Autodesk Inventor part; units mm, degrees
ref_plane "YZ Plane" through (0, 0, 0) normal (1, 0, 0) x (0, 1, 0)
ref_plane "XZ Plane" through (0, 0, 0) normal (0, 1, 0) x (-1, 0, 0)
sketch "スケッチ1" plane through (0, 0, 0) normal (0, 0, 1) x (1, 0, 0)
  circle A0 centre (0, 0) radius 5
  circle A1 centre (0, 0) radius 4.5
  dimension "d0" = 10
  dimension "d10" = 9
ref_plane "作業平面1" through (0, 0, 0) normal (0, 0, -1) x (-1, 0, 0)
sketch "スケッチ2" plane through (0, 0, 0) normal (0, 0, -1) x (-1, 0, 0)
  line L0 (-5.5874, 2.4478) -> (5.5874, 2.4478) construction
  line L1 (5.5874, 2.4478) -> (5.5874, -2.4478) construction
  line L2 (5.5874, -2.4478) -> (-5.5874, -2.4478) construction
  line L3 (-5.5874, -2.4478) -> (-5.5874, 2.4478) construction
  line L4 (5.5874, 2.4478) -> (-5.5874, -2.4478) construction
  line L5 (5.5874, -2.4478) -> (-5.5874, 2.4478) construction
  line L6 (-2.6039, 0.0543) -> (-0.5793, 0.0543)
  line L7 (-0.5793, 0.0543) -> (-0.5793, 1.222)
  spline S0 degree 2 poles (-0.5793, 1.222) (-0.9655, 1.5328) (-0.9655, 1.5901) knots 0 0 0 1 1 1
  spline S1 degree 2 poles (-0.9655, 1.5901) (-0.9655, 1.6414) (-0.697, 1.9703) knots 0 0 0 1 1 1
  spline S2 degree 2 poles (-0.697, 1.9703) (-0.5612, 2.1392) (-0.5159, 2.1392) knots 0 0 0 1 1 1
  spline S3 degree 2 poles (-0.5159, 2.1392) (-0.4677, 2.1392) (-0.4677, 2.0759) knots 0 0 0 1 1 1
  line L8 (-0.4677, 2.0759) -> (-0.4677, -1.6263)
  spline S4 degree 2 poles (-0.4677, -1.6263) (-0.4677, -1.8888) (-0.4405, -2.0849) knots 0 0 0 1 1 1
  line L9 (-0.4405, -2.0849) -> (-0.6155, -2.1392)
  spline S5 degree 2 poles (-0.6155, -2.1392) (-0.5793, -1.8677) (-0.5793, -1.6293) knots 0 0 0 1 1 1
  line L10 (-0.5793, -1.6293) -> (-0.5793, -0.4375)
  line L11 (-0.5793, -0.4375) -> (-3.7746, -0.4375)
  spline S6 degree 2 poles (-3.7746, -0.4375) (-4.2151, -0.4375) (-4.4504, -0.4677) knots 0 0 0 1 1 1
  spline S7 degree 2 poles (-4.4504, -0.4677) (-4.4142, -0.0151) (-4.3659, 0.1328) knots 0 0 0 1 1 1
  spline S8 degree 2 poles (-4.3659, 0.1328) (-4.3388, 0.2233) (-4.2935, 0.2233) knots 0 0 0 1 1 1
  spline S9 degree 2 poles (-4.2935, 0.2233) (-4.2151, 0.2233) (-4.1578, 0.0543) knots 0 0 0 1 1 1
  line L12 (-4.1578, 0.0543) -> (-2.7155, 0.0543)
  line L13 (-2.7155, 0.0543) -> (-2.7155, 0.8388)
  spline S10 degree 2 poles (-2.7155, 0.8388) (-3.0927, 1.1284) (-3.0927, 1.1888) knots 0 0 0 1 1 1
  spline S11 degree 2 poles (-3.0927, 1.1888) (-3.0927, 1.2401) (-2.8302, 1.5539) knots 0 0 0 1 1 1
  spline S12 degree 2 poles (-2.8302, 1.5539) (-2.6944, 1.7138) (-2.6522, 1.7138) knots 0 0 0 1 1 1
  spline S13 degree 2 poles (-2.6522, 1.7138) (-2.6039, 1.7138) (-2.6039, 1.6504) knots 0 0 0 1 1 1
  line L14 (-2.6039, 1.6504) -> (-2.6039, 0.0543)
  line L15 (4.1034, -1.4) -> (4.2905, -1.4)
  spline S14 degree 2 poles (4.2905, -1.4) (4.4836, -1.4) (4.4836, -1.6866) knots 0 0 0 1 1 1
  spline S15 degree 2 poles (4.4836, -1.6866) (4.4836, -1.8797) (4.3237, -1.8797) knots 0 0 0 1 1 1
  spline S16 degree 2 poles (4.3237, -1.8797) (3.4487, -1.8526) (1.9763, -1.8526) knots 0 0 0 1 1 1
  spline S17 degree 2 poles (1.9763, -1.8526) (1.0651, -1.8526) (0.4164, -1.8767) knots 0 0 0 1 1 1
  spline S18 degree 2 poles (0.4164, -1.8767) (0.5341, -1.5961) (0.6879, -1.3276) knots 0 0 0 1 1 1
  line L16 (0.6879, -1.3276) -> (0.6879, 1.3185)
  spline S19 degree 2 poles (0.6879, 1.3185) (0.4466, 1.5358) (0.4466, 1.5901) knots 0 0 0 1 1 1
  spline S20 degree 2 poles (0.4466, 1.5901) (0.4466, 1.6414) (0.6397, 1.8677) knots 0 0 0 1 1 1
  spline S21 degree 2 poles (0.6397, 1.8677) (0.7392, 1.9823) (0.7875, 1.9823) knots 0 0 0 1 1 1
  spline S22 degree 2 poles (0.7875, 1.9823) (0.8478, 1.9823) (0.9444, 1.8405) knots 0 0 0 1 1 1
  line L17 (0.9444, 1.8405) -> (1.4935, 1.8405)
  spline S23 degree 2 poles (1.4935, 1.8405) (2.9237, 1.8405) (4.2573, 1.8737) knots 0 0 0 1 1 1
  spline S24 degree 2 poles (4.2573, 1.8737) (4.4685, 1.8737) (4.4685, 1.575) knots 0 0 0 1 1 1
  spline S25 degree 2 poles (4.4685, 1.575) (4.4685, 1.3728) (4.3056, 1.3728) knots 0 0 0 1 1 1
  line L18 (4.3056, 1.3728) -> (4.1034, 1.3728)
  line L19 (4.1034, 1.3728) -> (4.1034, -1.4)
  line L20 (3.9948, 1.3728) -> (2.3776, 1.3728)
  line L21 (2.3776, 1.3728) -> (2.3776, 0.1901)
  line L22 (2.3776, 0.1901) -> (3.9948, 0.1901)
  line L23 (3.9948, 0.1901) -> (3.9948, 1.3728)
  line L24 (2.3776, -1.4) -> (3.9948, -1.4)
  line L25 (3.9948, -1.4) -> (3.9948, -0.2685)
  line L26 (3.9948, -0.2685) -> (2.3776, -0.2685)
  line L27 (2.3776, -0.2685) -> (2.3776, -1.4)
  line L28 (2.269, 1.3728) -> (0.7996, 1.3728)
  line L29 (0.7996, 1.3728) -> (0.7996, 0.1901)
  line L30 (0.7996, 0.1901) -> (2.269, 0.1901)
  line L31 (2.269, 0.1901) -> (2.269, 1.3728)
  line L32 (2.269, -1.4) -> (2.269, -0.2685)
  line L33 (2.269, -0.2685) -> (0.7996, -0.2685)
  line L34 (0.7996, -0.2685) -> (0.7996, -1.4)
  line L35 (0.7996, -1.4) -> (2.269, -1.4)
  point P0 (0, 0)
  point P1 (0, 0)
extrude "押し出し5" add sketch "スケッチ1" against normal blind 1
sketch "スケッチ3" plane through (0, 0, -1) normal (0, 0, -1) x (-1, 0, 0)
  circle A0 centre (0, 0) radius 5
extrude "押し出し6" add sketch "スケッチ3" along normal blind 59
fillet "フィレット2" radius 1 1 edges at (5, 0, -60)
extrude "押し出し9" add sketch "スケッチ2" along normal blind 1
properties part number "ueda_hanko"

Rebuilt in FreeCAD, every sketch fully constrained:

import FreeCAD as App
import Part
import Sketcher
from FreeCAD import Vector
Q = App.Units.Quantity


def edges_at(feature, points):
    """Names of the edges that pass closest to the given points."""
    edges = feature.Shape.Edges
    near = lambda p: min(range(len(edges)), key=lambda i: edges[i].distToShape(Part.Vertex(*p))[0])
    return sorted({f"Edge{near(p) + 1}" for p in points})

doc = App.newDocument("Part")
body = doc.addObject("PartDesign::Body", "Body")

sketch1 = doc.addObject("Sketcher::SketchObject", "Sketch")
body.addObject(sketch1)
sketch1.AttachmentSupport = (doc.XY_Plane, [""])
sketch1.MapMode = "FlatFace"
sketch1.addGeometry(Part.Circle(Vector(0, 0, 0), Vector(0, 0, 1), 5), False)
sketch1.addGeometry(Part.Circle(Vector(0, 0, 0), Vector(0, 0, 1), 4.5), False)
sketch1.addConstraint(Sketcher.Constraint("Coincident", 0, 3, -1, 1))
sketch1.addConstraint(Sketcher.Constraint("Coincident", 1, 3, -1, 1))
sketch1.addConstraint(Sketcher.Constraint("Diameter", 0, Q("10 mm")))
sketch1.addConstraint(Sketcher.Constraint("Diameter", 1, Q("9 mm")))
pad1 = doc.addObject("PartDesign::Pad", "Pad")
body.addObject(pad1)
pad1.Profile = sketch1
pad1.Length = 1
pad1.Reversed = True

sketch2 = doc.addObject("Sketcher::SketchObject", "Sketch001")
body.addObject(sketch2)
sketch2.AttachmentSupport = (doc.XY_Plane, [""])
sketch2.MapMode = "FlatFace"
sketch2.AttachmentOffset = App.Placement(Vector(0, 0, -1), App.Rotation())
sketch2.addGeometry(Part.Circle(Vector(0, 0, 0), Vector(0, 0, 1), 5), False)
sketch2.addConstraint(Sketcher.Constraint("Coincident", 0, 3, -1, 1))
sketch2.addConstraint(Sketcher.Constraint("Diameter", 0, Q("10 mm")))
pad2 = doc.addObject("PartDesign::Pad", "Pad001")
body.addObject(pad2)
pad2.Profile = sketch2
pad2.Length = 59
pad2.Reversed = True
doc.recompute()

fillet = doc.addObject("PartDesign::Fillet", "Fillet")
body.addObject(fillet)
fillet.Base = (pad2, edges_at(pad2, [(5, 0, -60)]))
fillet.Radius = 1

sketch3 = doc.addObject("Sketcher::SketchObject", "Sketch002")
body.addObject(sketch3)
sketch3.AttachmentSupport = (doc.XY_Plane, [""])
sketch3.MapMode = "FlatFace"
sketch3.addGeometry(Part.LineSegment(Vector(0.5793, 0.0543, 0), Vector(2.6039, 0.0543, 0)), False)
sketch3.addGeometry(Part.LineSegment(Vector(2.6039, 0.0543, 0), Vector(2.6039, 1.6504, 0)), False)
sketch3.addGeometry(Part.BSplineCurve([Vector(2.6522, 1.7138, 0), Vector(2.6039, 1.7138, 0), Vector(2.6039, 1.6504, 0)], [3, 3], [0, 1], False, 2, [1, 1, 1], False), False)
sketch3.addGeometry(Part.BSplineCurve([Vector(2.8302, 1.5539, 0), Vector(2.6944, 1.7138, 0), Vector(2.6522, 1.7138, 0)], [3, 3], [0, 1], False, 2, [1, 1, 1], False), False)
sketch3.addGeometry(Part.BSplineCurve([Vector(3.0927, 1.1888, 0), Vector(3.0927, 1.2401, 0), Vector(2.8302, 1.5539, 0)], [3, 3], [0, 1], False, 2, [1, 1, 1], False), False)
sketch3.addGeometry(Part.BSplineCurve([Vector(2.7155, 0.8388, 0), Vector(3.0927, 1.1284, 0), Vector(3.0927, 1.1888, 0)], [3, 3], [0, 1], False, 2, [1, 1, 1], False), False)
sketch3.addGeometry(Part.LineSegment(Vector(2.7155, 0.8388, 0), Vector(2.7155, 0.0543, 0)), False)
sketch3.addGeometry(Part.LineSegment(Vector(2.7155, 0.0543, 0), Vector(4.1578, 0.0543, 0)), False)
sketch3.addGeometry(Part.BSplineCurve([Vector(4.2935, 0.2233, 0), Vector(4.2151, 0.2233, 0), Vector(4.1578, 0.0543, 0)], [3, 3], [0, 1], False, 2, [1, 1, 1], False), False)
sketch3.addGeometry(Part.BSplineCurve([Vector(4.3659, 0.1328, 0), Vector(4.3388, 0.2233, 0), Vector(4.2935, 0.2233, 0)], [3, 3], [0, 1], False, 2, [1, 1, 1], False), False)
sketch3.addGeometry(Part.BSplineCurve([Vector(4.4504, -0.4677, 0), Vector(4.4142, -0.0151, 0), Vector(4.3659, 0.1328, 0)], [3, 3], [0, 1], False, 2, [1, 1, 1], False), False)
sketch3.addGeometry(Part.BSplineCurve([Vector(3.7746, -0.4375, 0), Vector(4.2151, -0.4375, 0), Vector(4.4504, -0.4677, 0)], [3, 3], [0, 1], False, 2, [1, 1, 1], False), False)
sketch3.addGeometry(Part.LineSegment(Vector(3.7746, -0.4375, 0), Vector(0.5793, -0.4375, 0)), False)
sketch3.addGeometry(Part.LineSegment(Vector(0.5793, -0.4375, 0), Vector(0.5793, -1.6293, 0)), False)
sketch3.addGeometry(Part.BSplineCurve([Vector(0.6155, -2.1392, 0), Vector(0.5793, -1.8677, 0), Vector(0.5793, -1.6293, 0)], [3, 3], [0, 1], False, 2, [1, 1, 1], False), False)
sketch3.addGeometry(Part.LineSegment(Vector(0.6155, -2.1392, 0), Vector(0.4405, -2.0849, 0)), False)
sketch3.addGeometry(Part.BSplineCurve([Vector(0.4677, -1.6263, 0), Vector(0.4677, -1.8888, 0), Vector(0.4405, -2.0849, 0)], [3, 3], [0, 1], False, 2, [1, 1, 1], False), False)
sketch3.addGeometry(Part.LineSegment(Vector(0.4677, -1.6263, 0), Vector(0.4677, 2.0759, 0)), False)
sketch3.addGeometry(Part.BSplineCurve([Vector(0.5159, 2.1392, 0), Vector(0.4677, 2.1392, 0), Vector(0.4677, 2.0759, 0)], [3, 3], [0, 1], False, 2, [1, 1, 1], False), False)
sketch3.addGeometry(Part.BSplineCurve([Vector(0.697, 1.9703, 0), Vector(0.5612, 2.1392, 0), Vector(0.5159, 2.1392, 0)], [3, 3], [0, 1], False, 2, [1, 1, 1], False), False)
sketch3.addGeometry(Part.BSplineCurve([Vector(0.9655, 1.5901, 0), Vector(0.9655, 1.6414, 0), Vector(0.697, 1.9703, 0)], [3, 3], [0, 1], False, 2, [1, 1, 1], False), False)
sketch3.addGeometry(Part.BSplineCurve([Vector(0.5793, 1.222, 0), Vector(0.9655, 1.5328, 0), Vector(0.9655, 1.5901, 0)], [3, 3], [0, 1], False, 2, [1, 1, 1], False), False)
sketch3.addGeometry(Part.LineSegment(Vector(0.5793, 1.222, 0), Vector(0.5793, 0.0543, 0)), False)
sketch3.addGeometry(Part.LineSegment(Vector(-4.2905, -1.4, 0), Vector(-4.1034, -1.4, 0)), False)
sketch3.addGeometry(Part.LineSegment(Vector(-4.1034, -1.4, 0), Vector(-4.1034, 1.3728, 0)), False)
sketch3.addGeometry(Part.LineSegment(Vector(-4.1034, 1.3728, 0), Vector(-4.3056, 1.3728, 0)), False)
sketch3.addGeometry(Part.BSplineCurve([Vector(-4.4685, 1.575, 0), Vector(-4.4685, 1.3728, 0), Vector(-4.3056, 1.3728, 0)], [3, 3], [0, 1], False, 2, [1, 1, 1], False), False)
sketch3.addGeometry(Part.BSplineCurve([Vector(-4.2573, 1.8737, 0), Vector(-4.4685, 1.8737, 0), Vector(-4.4685, 1.575, 0)], [3, 3], [0, 1], False, 2, [1, 1, 1], False), False)
sketch3.addGeometry(Part.BSplineCurve([Vector(-1.4935, 1.8405, 0), Vector(-2.9237, 1.8405, 0), Vector(-4.2573, 1.8737, 0)], [3, 3], [0, 1], False, 2, [1, 1, 1], False), False)
sketch3.addGeometry(Part.LineSegment(Vector(-1.4935, 1.8405, 0), Vector(-0.9444, 1.8405, 0)), False)
sketch3.addGeometry(Part.BSplineCurve([Vector(-0.7875, 1.9823, 0), Vector(-0.8478, 1.9823, 0), Vector(-0.9444, 1.8405, 0)], [3, 3], [0, 1], False, 2, [1, 1, 1], False), False)
sketch3.addGeometry(Part.BSplineCurve([Vector(-0.6397, 1.8677, 0), Vector(-0.7392, 1.9823, 0), Vector(-0.7875, 1.9823, 0)], [3, 3], [0, 1], False, 2, [1, 1, 1], False), False)
sketch3.addGeometry(Part.BSplineCurve([Vector(-0.4466, 1.5901, 0), Vector(-0.4466, 1.6414, 0), Vector(-0.6397, 1.8677, 0)], [3, 3], [0, 1], False, 2, [1, 1, 1], False), False)
sketch3.addGeometry(Part.BSplineCurve([Vector(-0.6879, 1.3185, 0), Vector(-0.4466, 1.5358, 0), Vector(-0.4466, 1.5901, 0)], [3, 3], [0, 1], False, 2, [1, 1, 1], False), False)
sketch3.addGeometry(Part.LineSegment(Vector(-0.6879, 1.3185, 0), Vector(-0.6879, -1.3276, 0)), False)
sketch3.addGeometry(Part.BSplineCurve([Vector(-0.4164, -1.8767, 0), Vector(-0.5341, -1.5961, 0), Vector(-0.6879, -1.3276, 0)], [3, 3], [0, 1], False, 2, [1, 1, 1], False), False)
sketch3.addGeometry(Part.BSplineCurve([Vector(-1.9763, -1.8526, 0), Vector(-1.0651, -1.8526, 0), Vector(-0.4164, -1.8767, 0)], [3, 3], [0, 1], False, 2, [1, 1, 1], False), False)
sketch3.addGeometry(Part.BSplineCurve([Vector(-4.3237, -1.8797, 0), Vector(-3.4487, -1.8526, 0), Vector(-1.9763, -1.8526, 0)], [3, 3], [0, 1], False, 2, [1, 1, 1], False), False)
sketch3.addGeometry(Part.BSplineCurve([Vector(-4.4836, -1.6866, 0), Vector(-4.4836, -1.8797, 0), Vector(-4.3237, -1.8797, 0)], [3, 3], [0, 1], False, 2, [1, 1, 1], False), False)
sketch3.addGeometry(Part.BSplineCurve([Vector(-4.2905, -1.4, 0), Vector(-4.4836, -1.4, 0), Vector(-4.4836, -1.6866, 0)], [3, 3], [0, 1], False, 2, [1, 1, 1], False), False)
sketch3.addGeometry(Part.LineSegment(Vector(-2.269, -0.2685, 0), Vector(-2.269, -1.4, 0)), False)
sketch3.addGeometry(Part.LineSegment(Vector(-2.269, -1.4, 0), Vector(-0.7996, -1.4, 0)), False)
sketch3.addGeometry(Part.LineSegment(Vector(-0.7996, -1.4, 0), Vector(-0.7996, -0.2685, 0)), False)
sketch3.addGeometry(Part.LineSegment(Vector(-0.7996, -0.2685, 0), Vector(-2.269, -0.2685, 0)), False)
sketch3.addGeometry(Part.LineSegment(Vector(-3.9948, -1.4, 0), Vector(-2.3776, -1.4, 0)), False)
sketch3.addGeometry(Part.LineSegment(Vector(-2.3776, -1.4, 0), Vector(-2.3776, -0.2685, 0)), False)
sketch3.addGeometry(Part.LineSegment(Vector(-2.3776, -0.2685, 0), Vector(-3.9948, -0.2685, 0)), False)
sketch3.addGeometry(Part.LineSegment(Vector(-3.9948, -0.2685, 0), Vector(-3.9948, -1.4, 0)), False)
sketch3.addGeometry(Part.LineSegment(Vector(-0.7996, 1.3728, 0), Vector(-2.269, 1.3728, 0)), False)
sketch3.addGeometry(Part.LineSegment(Vector(-2.269, 1.3728, 0), Vector(-2.269, 0.1901, 0)), False)
sketch3.addGeometry(Part.LineSegment(Vector(-2.269, 0.1901, 0), Vector(-0.7996, 0.1901, 0)), False)
sketch3.addGeometry(Part.LineSegment(Vector(-0.7996, 0.1901, 0), Vector(-0.7996, 1.3728, 0)), False)
sketch3.addGeometry(Part.LineSegment(Vector(-2.3776, 1.3728, 0), Vector(-3.9948, 1.3728, 0)), False)
sketch3.addGeometry(Part.LineSegment(Vector(-3.9948, 1.3728, 0), Vector(-3.9948, 0.1901, 0)), False)
sketch3.addGeometry(Part.LineSegment(Vector(-3.9948, 0.1901, 0), Vector(-2.3776, 0.1901, 0)), False)
sketch3.addGeometry(Part.LineSegment(Vector(-2.3776, 0.1901, 0), Vector(-2.3776, 1.3728, 0)), False)
sketch3.addConstraint(Sketcher.Constraint("Block", 2))
sketch3.addConstraint(Sketcher.Constraint("Block", 3))
sketch3.addConstraint(Sketcher.Constraint("Block", 4))
sketch3.addConstraint(Sketcher.Constraint("Block", 5))
sketch3.addConstraint(Sketcher.Constraint("Block", 8))
sketch3.addConstraint(Sketcher.Constraint("Block", 9))
sketch3.addConstraint(Sketcher.Constraint("Block", 10))
sketch3.addConstraint(Sketcher.Constraint("Block", 11))
sketch3.addConstraint(Sketcher.Constraint("Block", 14))
sketch3.addConstraint(Sketcher.Constraint("Block", 16))
sketch3.addConstraint(Sketcher.Constraint("Block", 18))
sketch3.addConstraint(Sketcher.Constraint("Block", 19))
sketch3.addConstraint(Sketcher.Constraint("Block", 20))
sketch3.addConstraint(Sketcher.Constraint("Block", 21))
sketch3.addConstraint(Sketcher.Constraint("Block", 26))
sketch3.addConstraint(Sketcher.Constraint("Block", 27))
sketch3.addConstraint(Sketcher.Constraint("Block", 28))
sketch3.addConstraint(Sketcher.Constraint("Block", 30))
sketch3.addConstraint(Sketcher.Constraint("Block", 31))
sketch3.addConstraint(Sketcher.Constraint("Block", 32))
sketch3.addConstraint(Sketcher.Constraint("Block", 33))
sketch3.addConstraint(Sketcher.Constraint("Block", 35))
sketch3.addConstraint(Sketcher.Constraint("Block", 36))
sketch3.addConstraint(Sketcher.Constraint("Block", 37))
sketch3.addConstraint(Sketcher.Constraint("Block", 38))
sketch3.addConstraint(Sketcher.Constraint("Block", 39))
sketch3.addConstraint(Sketcher.Constraint("Coincident", 0, 2, 1, 1))
sketch3.addConstraint(Sketcher.Constraint("Coincident", 1, 2, 2, 2))
sketch3.addConstraint(Sketcher.Constraint("Coincident", 5, 1, 6, 1))
sketch3.addConstraint(Sketcher.Constraint("Coincident", 6, 2, 7, 1))
sketch3.addConstraint(Sketcher.Constraint("Coincident", 7, 2, 8, 2))
sketch3.addConstraint(Sketcher.Constraint("Coincident", 11, 1, 12, 1))
sketch3.addConstraint(Sketcher.Constraint("Coincident", 12, 2, 13, 1))
sketch3.addConstraint(Sketcher.Constraint("Coincident", 13, 2, 14, 2))
sketch3.addConstraint(Sketcher.Constraint("Coincident", 14, 1, 15, 1))
sketch3.addConstraint(Sketcher.Constraint("Coincident", 15, 2, 16, 2))
sketch3.addConstraint(Sketcher.Constraint("Coincident", 16, 1, 17, 1))
sketch3.addConstraint(Sketcher.Constraint("Coincident", 17, 2, 18, 2))
sketch3.addConstraint(Sketcher.Constraint("Coincident", 21, 1, 22, 1))
sketch3.addConstraint(Sketcher.Constraint("Coincident", 22, 2, 0, 1))
sketch3.addConstraint(Sketcher.Constraint("Coincident", 23, 2, 24, 1))
sketch3.addConstraint(Sketcher.Constraint("Coincident", 24, 2, 25, 1))
sketch3.addConstraint(Sketcher.Constraint("Coincident", 25, 2, 26, 2))
sketch3.addConstraint(Sketcher.Constraint("Coincident", 28, 1, 29, 1))
sketch3.addConstraint(Sketcher.Constraint("Coincident", 29, 2, 30, 2))
sketch3.addConstraint(Sketcher.Constraint("Coincident", 33, 1, 34, 1))
sketch3.addConstraint(Sketcher.Constraint("Coincident", 34, 2, 35, 2))
sketch3.addConstraint(Sketcher.Constraint("Coincident", 39, 1, 23, 1))
sketch3.addConstraint(Sketcher.Constraint("Coincident", 40, 2, 41, 1))
sketch3.addConstraint(Sketcher.Constraint("Coincident", 41, 2, 42, 1))
sketch3.addConstraint(Sketcher.Constraint("Coincident", 42, 2, 43, 1))
sketch3.addConstraint(Sketcher.Constraint("Coincident", 43, 2, 40, 1))
sketch3.addConstraint(Sketcher.Constraint("Coincident", 44, 2, 45, 1))
sketch3.addConstraint(Sketcher.Constraint("Coincident", 45, 2, 46, 1))
sketch3.addConstraint(Sketcher.Constraint("Coincident", 46, 2, 47, 1))
sketch3.addConstraint(Sketcher.Constraint("Coincident", 47, 2, 44, 1))
sketch3.addConstraint(Sketcher.Constraint("Coincident", 48, 2, 49, 1))
sketch3.addConstraint(Sketcher.Constraint("Coincident", 49, 2, 50, 1))
sketch3.addConstraint(Sketcher.Constraint("Coincident", 50, 2, 51, 1))
sketch3.addConstraint(Sketcher.Constraint("Coincident", 51, 2, 48, 1))
sketch3.addConstraint(Sketcher.Constraint("Coincident", 52, 2, 53, 1))
sketch3.addConstraint(Sketcher.Constraint("Coincident", 53, 2, 54, 1))
sketch3.addConstraint(Sketcher.Constraint("Coincident", 54, 2, 55, 1))
sketch3.addConstraint(Sketcher.Constraint("Coincident", 55, 2, 52, 1))
sketch3.addConstraint(Sketcher.Constraint("Horizontal", 0))
sketch3.addConstraint(Sketcher.Constraint("Vertical", 1))
sketch3.addConstraint(Sketcher.Constraint("Vertical", 6))
sketch3.addConstraint(Sketcher.Constraint("Horizontal", 7))
sketch3.addConstraint(Sketcher.Constraint("Horizontal", 12))
sketch3.addConstraint(Sketcher.Constraint("Vertical", 13))
sketch3.addConstraint(Sketcher.Constraint("Vertical", 22))
sketch3.addConstraint(Sketcher.Constraint("Horizontal", 23))
sketch3.addConstraint(Sketcher.Constraint("Vertical", 24))
sketch3.addConstraint(Sketcher.Constraint("Horizontal", 25))
sketch3.addConstraint(Sketcher.Constraint("Vertical", 40))
sketch3.addConstraint(Sketcher.Constraint("Horizontal", 41))
sketch3.addConstraint(Sketcher.Constraint("Vertical", 42))
sketch3.addConstraint(Sketcher.Constraint("Horizontal", 43))
sketch3.addConstraint(Sketcher.Constraint("Horizontal", 44))
sketch3.addConstraint(Sketcher.Constraint("Vertical", 45))
sketch3.addConstraint(Sketcher.Constraint("Horizontal", 46))
sketch3.addConstraint(Sketcher.Constraint("Vertical", 47))
sketch3.addConstraint(Sketcher.Constraint("Horizontal", 48))
sketch3.addConstraint(Sketcher.Constraint("Vertical", 49))
sketch3.addConstraint(Sketcher.Constraint("Horizontal", 50))
sketch3.addConstraint(Sketcher.Constraint("Vertical", 51))
sketch3.addConstraint(Sketcher.Constraint("Horizontal", 52))
sketch3.addConstraint(Sketcher.Constraint("Vertical", 53))
sketch3.addConstraint(Sketcher.Constraint("Horizontal", 54))
sketch3.addConstraint(Sketcher.Constraint("Vertical", 55))
sketch3.addConstraint(Sketcher.Constraint("Horizontal", 0, 2, 6, 2))
sketch3.addConstraint(Sketcher.Constraint("Horizontal", 23, 2, 40, 2))
sketch3.addConstraint(Sketcher.Constraint("Horizontal", 41, 2, 44, 2))
sketch3.addConstraint(Sketcher.Constraint("Horizontal", 43, 2, 45, 2))
sketch3.addConstraint(Sketcher.Constraint("Horizontal", 25, 2, 48, 2))
sketch3.addConstraint(Sketcher.Constraint("Horizontal", 51, 2, 52, 2))
sketch3.addConstraint(Sketcher.Constraint("Horizontal", 50, 2, 53, 2))
sketch3.addConstraint(Sketcher.Constraint("Vertical", 43, 2, 48, 2))
sketch3.addConstraint(Sketcher.Constraint("Vertical", 42, 2, 50, 2))
sketch3.addConstraint(Sketcher.Constraint("Vertical", 47, 2, 52, 2))
sketch3.addConstraint(Sketcher.Constraint("Vertical", 45, 2, 54, 2))
sketch3.addConstraint(Sketcher.Constraint("DistanceX", 23, 1, 23, 2, Q("0.187 mm")))
sketch3.addConstraint(Sketcher.Constraint("DistanceY", -1, 1, 49, 2, Q("0.19 mm")))
sketch3.addConstraint(Sketcher.Constraint("DistanceX", 41, 2, 15, 2, Q("1.24 mm")))
sketch3.addConstraint(Sketcher.Constraint("DistanceX", 41, 1, 41, 2, Q("1.4694 mm")))
sketch3.addConstraint(Sketcher.Constraint("DistanceX", 44, 1, 44, 2, Q("1.6172 mm")))
sketch3.addConstraint(Sketcher.Constraint("DistanceY", 40, 2, 40, 1, Q("1.1315 mm")))
sketch3.addConstraint(Sketcher.Constraint("DistanceX", 44, 2, 41, 2, Q("1.578 mm")))
pad3 = doc.addObject("PartDesign::Pad", "Pad002")
body.addObject(pad3)
pad3.Profile = sketch3
pad3.Length = 1
pad3.Reversed = True

doc.recompute()
